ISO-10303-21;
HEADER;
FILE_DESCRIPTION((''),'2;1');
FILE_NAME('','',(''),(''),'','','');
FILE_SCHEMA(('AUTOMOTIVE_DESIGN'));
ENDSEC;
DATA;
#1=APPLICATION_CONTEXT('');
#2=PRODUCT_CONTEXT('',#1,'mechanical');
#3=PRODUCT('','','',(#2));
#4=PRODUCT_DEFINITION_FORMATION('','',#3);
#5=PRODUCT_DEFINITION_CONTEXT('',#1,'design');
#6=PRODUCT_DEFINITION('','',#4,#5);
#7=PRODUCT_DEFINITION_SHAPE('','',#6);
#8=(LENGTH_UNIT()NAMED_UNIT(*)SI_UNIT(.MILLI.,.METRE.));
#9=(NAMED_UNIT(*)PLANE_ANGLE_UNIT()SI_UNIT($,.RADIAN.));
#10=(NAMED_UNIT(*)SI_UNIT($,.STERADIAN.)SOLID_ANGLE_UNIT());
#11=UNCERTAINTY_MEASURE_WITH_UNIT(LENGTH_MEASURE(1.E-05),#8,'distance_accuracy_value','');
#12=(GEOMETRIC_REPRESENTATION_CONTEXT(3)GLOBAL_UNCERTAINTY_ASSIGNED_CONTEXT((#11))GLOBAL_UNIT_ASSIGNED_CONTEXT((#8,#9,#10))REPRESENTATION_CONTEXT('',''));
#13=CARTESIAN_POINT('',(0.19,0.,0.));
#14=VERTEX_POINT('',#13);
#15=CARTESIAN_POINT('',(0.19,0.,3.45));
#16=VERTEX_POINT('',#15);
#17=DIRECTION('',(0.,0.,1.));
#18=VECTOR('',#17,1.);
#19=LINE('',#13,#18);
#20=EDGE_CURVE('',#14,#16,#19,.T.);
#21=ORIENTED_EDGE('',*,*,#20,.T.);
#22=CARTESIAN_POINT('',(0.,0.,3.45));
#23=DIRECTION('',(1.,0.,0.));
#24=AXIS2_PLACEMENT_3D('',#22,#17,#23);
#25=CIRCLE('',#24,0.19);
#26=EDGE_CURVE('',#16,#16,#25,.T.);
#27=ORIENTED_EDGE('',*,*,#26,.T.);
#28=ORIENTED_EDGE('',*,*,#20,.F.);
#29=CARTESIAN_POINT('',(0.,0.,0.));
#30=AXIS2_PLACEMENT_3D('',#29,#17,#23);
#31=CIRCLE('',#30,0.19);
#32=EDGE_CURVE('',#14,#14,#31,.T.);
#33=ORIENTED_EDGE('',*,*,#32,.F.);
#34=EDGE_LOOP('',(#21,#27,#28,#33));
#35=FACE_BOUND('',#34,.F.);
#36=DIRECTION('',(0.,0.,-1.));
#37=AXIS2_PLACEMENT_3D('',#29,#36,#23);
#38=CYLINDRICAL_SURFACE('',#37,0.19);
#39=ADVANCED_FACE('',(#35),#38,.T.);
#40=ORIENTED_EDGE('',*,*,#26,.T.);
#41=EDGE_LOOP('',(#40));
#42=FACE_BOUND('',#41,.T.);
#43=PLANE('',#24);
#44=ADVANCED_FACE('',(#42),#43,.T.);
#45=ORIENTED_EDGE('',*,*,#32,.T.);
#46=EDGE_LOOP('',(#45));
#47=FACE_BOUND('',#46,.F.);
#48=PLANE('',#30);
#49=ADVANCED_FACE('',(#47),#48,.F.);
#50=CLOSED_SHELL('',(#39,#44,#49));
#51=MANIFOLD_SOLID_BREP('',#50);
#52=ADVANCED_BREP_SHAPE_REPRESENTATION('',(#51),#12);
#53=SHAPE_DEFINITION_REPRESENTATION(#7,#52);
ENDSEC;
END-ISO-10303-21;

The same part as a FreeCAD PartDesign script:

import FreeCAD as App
import Part
import Sketcher
from FreeCAD import Vector

doc = App.newDocument("Part")
body = doc.addObject("PartDesign::Body", "Body")

# Sketch on XY plane
sketch1 = doc.addObject("Sketcher::SketchObject", "Sketch")
body.addObject(sketch1)
sketch1.AttachmentSupport = (doc.XY_Plane, [""])
sketch1.MapMode = "FlatFace"
sketch1.addGeometry(Part.Circle(Vector(0, 0, 0), Vector(0, 0, 1), 0.19), False)
sketch1.addConstraint(Sketcher.Constraint("Coincident", 0, 3, -1, 1))
sketch1.addConstraint(Sketcher.Constraint("Diameter", 0, 0.38))
pad1 = doc.addObject("PartDesign::Pad", "Pad")
body.addObject(pad1)
pad1.Profile = sketch1
pad1.Length = 3.45

doc.recompute()
